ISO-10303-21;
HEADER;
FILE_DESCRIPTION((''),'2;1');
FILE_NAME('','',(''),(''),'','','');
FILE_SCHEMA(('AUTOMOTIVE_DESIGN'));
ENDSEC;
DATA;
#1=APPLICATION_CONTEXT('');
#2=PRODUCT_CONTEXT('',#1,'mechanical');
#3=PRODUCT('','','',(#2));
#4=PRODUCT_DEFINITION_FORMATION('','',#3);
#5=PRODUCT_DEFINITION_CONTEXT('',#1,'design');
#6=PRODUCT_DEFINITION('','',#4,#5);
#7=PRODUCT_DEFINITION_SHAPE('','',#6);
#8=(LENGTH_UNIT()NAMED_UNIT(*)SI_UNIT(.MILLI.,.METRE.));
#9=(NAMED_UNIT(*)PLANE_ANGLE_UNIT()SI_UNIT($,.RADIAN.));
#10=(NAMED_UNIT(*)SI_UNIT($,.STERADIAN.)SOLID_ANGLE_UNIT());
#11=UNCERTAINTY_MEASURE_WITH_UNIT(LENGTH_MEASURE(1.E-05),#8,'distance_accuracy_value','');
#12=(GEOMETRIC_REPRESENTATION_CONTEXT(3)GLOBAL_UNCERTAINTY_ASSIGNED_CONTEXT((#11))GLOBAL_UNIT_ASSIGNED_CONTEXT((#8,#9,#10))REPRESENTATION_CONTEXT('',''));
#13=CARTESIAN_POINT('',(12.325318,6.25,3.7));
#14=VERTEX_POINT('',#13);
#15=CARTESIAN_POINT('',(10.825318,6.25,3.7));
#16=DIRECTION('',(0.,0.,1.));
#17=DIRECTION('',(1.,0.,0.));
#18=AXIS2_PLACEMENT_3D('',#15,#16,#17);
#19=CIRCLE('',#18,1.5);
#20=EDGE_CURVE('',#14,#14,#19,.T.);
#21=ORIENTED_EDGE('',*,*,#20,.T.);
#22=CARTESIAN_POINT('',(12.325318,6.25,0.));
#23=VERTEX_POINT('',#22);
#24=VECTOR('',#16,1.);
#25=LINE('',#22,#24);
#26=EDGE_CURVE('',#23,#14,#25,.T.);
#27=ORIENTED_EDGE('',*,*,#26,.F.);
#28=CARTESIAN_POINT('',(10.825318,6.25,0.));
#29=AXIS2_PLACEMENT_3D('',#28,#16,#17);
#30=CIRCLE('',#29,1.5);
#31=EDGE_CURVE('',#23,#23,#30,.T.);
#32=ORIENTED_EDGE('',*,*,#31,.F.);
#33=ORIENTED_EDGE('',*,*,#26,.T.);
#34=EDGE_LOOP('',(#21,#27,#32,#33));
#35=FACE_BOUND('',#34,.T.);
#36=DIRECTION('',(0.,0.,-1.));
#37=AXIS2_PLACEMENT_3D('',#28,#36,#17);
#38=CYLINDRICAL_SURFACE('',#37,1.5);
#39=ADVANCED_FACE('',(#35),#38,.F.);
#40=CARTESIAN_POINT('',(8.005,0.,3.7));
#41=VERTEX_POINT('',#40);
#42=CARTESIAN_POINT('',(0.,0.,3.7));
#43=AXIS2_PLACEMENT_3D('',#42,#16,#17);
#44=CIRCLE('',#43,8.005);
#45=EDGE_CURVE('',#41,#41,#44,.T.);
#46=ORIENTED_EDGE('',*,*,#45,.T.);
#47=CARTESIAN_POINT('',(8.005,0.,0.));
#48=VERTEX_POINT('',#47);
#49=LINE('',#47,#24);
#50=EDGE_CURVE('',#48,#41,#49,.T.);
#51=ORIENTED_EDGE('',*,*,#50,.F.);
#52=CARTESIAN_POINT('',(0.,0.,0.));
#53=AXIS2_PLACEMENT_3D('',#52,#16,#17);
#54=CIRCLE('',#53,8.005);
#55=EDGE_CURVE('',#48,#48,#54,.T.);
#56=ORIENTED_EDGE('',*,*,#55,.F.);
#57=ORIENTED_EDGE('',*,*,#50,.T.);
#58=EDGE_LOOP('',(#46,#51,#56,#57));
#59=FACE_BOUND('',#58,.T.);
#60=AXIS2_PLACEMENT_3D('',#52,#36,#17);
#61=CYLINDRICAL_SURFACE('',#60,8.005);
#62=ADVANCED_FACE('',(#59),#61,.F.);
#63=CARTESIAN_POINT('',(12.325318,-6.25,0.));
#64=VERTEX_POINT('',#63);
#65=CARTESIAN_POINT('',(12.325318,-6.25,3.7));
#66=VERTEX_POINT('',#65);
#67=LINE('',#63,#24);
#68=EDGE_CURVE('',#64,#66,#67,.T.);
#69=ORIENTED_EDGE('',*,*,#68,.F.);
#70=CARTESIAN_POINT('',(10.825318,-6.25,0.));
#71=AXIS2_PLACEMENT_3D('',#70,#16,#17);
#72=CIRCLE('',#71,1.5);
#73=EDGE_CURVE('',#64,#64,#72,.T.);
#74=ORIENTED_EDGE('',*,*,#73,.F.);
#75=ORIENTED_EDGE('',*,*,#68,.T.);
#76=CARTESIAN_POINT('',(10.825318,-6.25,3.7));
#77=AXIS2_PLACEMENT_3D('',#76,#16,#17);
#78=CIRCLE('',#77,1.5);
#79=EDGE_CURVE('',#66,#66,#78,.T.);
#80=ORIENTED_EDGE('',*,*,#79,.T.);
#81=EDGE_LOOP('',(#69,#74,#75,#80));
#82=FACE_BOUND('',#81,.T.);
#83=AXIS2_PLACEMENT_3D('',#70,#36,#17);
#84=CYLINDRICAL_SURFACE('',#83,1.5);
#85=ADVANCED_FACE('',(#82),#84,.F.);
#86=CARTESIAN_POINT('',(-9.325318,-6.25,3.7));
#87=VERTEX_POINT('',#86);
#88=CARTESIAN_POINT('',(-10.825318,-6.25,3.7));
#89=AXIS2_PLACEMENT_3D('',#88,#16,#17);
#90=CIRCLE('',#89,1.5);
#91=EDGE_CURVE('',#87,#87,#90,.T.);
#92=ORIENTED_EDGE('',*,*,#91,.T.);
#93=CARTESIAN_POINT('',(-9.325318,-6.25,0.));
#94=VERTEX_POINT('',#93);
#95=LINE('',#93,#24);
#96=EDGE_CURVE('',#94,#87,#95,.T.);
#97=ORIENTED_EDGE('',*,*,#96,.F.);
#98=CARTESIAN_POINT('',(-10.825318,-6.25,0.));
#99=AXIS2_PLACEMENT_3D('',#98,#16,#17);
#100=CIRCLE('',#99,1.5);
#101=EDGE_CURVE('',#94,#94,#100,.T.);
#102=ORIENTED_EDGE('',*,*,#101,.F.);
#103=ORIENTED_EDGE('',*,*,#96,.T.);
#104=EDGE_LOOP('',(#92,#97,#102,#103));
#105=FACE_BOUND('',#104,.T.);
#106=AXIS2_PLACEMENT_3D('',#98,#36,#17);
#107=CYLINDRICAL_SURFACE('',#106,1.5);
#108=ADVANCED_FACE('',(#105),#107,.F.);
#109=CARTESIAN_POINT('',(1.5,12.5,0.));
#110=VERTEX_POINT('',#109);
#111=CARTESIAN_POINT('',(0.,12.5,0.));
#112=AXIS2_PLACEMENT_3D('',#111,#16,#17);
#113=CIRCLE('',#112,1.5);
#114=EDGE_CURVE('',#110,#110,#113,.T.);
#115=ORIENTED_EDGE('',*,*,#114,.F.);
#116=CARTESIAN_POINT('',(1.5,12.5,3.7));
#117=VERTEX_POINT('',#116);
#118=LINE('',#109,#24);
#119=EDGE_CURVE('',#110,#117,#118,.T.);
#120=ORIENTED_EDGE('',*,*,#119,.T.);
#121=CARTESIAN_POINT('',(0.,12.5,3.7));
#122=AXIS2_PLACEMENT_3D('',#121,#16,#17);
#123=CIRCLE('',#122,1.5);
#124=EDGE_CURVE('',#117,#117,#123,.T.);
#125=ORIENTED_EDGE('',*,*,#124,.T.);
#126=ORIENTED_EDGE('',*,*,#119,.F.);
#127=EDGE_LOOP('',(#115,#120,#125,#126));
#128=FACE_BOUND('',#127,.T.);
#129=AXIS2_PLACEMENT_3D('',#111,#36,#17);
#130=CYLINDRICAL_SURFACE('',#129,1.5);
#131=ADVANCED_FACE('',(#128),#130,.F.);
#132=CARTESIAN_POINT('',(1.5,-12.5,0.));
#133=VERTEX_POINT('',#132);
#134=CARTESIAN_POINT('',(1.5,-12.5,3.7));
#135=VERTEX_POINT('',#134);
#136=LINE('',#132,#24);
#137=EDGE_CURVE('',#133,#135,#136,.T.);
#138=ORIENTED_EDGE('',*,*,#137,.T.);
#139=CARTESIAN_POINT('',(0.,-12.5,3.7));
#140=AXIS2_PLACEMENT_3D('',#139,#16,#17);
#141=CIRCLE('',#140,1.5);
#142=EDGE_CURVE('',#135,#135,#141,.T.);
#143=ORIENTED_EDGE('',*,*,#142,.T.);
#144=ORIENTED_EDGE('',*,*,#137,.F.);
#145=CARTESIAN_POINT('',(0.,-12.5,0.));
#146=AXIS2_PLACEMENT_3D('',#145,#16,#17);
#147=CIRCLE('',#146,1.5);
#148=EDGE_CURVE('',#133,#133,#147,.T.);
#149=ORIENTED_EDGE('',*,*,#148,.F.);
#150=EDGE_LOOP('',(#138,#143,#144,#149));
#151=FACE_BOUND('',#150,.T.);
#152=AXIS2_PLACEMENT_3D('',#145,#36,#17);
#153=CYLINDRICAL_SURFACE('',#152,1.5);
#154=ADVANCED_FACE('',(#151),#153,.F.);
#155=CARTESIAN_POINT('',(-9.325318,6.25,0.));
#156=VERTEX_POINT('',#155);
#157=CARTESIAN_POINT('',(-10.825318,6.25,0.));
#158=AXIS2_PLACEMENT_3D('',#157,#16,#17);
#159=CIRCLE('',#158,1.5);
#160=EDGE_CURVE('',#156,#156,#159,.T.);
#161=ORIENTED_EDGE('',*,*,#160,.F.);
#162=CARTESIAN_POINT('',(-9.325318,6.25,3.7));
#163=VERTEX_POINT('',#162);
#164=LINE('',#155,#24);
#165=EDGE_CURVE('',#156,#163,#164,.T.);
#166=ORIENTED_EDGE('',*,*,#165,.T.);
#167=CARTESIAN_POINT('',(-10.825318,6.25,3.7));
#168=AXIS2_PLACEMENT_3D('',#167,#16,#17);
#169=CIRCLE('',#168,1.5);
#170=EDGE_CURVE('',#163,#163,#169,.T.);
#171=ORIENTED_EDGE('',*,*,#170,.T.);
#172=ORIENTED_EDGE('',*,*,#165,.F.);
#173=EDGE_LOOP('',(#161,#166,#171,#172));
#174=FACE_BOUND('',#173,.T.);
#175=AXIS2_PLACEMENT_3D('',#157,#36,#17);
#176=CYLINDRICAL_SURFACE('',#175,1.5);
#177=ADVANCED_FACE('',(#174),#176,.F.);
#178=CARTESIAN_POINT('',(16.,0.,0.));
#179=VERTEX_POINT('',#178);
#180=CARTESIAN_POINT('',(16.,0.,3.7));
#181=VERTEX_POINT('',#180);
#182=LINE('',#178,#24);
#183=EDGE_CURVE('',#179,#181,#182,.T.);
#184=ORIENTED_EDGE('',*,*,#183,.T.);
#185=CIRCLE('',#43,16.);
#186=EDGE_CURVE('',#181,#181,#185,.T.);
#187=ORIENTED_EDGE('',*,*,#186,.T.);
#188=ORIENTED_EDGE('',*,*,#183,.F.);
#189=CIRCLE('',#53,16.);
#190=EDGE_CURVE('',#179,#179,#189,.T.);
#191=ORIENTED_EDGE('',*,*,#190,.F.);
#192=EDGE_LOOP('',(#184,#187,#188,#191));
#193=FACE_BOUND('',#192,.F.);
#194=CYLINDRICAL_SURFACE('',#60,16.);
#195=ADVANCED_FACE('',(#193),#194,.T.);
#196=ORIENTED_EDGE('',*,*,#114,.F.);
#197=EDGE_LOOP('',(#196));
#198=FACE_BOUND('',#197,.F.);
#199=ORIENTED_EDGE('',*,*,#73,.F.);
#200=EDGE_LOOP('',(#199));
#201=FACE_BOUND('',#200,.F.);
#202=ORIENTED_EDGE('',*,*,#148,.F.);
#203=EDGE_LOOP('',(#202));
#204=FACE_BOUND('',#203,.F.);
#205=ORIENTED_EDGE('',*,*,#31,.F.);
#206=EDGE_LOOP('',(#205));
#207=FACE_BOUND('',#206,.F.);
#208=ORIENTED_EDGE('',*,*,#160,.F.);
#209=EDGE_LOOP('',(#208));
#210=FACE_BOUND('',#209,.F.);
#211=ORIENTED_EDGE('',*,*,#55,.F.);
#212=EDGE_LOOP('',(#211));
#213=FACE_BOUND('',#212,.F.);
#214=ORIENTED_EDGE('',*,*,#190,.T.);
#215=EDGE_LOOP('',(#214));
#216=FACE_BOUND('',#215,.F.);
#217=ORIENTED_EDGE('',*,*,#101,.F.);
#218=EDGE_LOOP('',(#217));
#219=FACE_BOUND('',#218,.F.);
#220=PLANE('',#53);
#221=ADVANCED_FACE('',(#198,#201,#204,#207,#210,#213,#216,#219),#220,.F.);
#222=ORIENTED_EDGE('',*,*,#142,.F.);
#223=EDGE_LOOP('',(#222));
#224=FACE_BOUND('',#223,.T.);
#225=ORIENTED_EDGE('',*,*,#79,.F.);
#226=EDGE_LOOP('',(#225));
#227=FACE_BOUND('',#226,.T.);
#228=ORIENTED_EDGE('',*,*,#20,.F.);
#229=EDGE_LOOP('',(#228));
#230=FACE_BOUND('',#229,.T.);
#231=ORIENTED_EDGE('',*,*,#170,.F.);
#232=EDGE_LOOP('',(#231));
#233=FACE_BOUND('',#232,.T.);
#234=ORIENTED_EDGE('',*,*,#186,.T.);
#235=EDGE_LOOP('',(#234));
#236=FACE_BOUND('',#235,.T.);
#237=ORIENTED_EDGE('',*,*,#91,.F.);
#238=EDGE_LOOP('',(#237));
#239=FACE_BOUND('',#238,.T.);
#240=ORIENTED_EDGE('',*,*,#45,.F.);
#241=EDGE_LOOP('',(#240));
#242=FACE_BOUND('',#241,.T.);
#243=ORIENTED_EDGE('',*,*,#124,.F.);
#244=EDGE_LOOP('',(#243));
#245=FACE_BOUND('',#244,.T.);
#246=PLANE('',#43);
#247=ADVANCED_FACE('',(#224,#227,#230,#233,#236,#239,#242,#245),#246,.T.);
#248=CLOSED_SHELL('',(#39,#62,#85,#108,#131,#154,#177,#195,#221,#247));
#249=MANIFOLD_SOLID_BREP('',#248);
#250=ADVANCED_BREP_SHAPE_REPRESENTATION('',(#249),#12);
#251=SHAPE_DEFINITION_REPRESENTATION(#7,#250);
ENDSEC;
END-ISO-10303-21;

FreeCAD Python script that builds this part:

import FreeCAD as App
import Part
import Sketcher

V = App.Vector

doc = App.newDocument("Part")
body = doc.addObject("PartDesign::Body", "Body")

# Sketch on XY plane
sketch1 = body.newObject("Sketcher::SketchObject", "Sketch")
sketch1.AttachmentSupport = (doc.getObject("XY_Plane"), [""])
sketch1.MapMode = "FlatFace"
sketch1.addGeometry([
    Part.Circle(V(0, 0, 0), V(0, 0, 1), 16),  # 0
    Part.Circle(V(-10.8, -6.2, 0), V(0, 0, 1), 1.5),  # 1
    Part.Circle(V(0, -12.5, 0), V(0, 0, 1), 1.5),  # 2
    Part.Circle(V(10.8, -6.2, 0), V(0, 0, 1), 1.5),  # 3
    Part.Circle(V(-10.8, 6.2, 0), V(0, 0, 1), 1.5),  # 4
    Part.Circle(V(0, 0, 0), V(0, 0, 1), 8),  # 5
    Part.Circle(V(10.8, 6.2, 0), V(0, 0, 1), 1.5),  # 6
    Part.Circle(V(0, 12.5, 0), V(0, 0, 1), 1.5),  # 7
], False)
sketch1.addConstraint([
    Sketcher.Constraint("Coincident", 0, 3, -1, 1),
    Sketcher.Constraint("Coincident", 5, 3, -1, 1),
    Sketcher.Constraint("Equal", 1, 2),
    Sketcher.Constraint("Equal", 2, 3),
    Sketcher.Constraint("Equal", 3, 4),
    Sketcher.Constraint("Equal", 4, 6),
    Sketcher.Constraint("Equal", 6, 7),
    Sketcher.Constraint("Symmetric", 3, 3, 4, 3, -1, 1),
    Sketcher.Constraint("Symmetric", 1, 3, 6, 3, -1, 1),
    Sketcher.Constraint("Symmetric", 2, 3, 7, 3, -1, 1),
    Sketcher.Constraint("Symmetric", 1, 3, 3, 3, -2),
    Sketcher.Constraint("PointOnObject", 2, 3, -2),
    Sketcher.Constraint("Diameter", 0, 32.0),
    Sketcher.Constraint("Diameter", 1, 3.0),
    Sketcher.Constraint("Diameter", 5, 16.01),
    Sketcher.Constraint("DistanceY", 2, 3, -1, 1, 12.5),
    Sketcher.Constraint("DistanceY", 1, 3, 4, 3, 12.5),
    Sketcher.Constraint("DistanceX", 1, 3, -1, 1, 10.825318),
])
pad1 = body.newObject("PartDesign::Pad", "Pad")
pad1.Profile = sketch1
pad1.Length = 3.7

doc.recompute()
